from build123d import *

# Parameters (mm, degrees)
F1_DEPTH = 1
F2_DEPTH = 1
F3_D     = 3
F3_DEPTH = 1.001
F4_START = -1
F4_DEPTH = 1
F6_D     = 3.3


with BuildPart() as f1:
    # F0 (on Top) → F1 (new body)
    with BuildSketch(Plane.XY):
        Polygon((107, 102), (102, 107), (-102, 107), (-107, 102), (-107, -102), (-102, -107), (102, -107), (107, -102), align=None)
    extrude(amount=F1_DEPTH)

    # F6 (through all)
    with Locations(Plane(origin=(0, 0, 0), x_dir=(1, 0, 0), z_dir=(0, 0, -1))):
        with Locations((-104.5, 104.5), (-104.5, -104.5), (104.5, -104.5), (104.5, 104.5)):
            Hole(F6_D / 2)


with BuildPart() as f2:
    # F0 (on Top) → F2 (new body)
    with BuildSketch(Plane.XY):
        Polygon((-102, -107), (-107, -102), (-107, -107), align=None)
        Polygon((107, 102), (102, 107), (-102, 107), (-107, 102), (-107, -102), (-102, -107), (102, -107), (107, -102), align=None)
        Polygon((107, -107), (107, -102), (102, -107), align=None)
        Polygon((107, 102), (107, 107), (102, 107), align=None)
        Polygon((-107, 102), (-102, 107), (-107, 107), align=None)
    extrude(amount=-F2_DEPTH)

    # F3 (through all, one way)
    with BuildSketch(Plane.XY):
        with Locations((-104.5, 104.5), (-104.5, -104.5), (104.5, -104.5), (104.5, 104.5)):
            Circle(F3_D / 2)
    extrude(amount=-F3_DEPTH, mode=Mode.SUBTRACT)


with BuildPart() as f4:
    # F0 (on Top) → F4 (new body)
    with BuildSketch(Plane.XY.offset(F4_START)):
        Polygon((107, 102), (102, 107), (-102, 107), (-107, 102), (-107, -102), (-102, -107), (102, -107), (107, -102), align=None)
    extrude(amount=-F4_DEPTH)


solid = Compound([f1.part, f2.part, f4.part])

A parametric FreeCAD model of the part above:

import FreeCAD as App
import Part
import Sketcher
Q = App.Units.Quantity

doc = App.newDocument("Part")
body = doc.addObject("PartDesign::Body", "Body")

sketch1 = body.newObject("Sketcher::SketchObject", "Sketch")
sketch1.AttachmentSupport = (doc.getObject("XY_Plane"), [""])
sketch1.MapMode = "FlatFace"
sketch1.addGeometry([
    Part.LineSegment(App.Vector(107, 102, 0), App.Vector(102, 107, 0)),
    Part.LineSegment(App.Vector(102, 107, 0), App.Vector(-102, 107, 0)),
    Part.LineSegment(App.Vector(-102, 107, 0), App.Vector(-107, 102, 0)),
    Part.LineSegment(App.Vector(-107, 102, 0), App.Vector(-107, -102, 0)),
    Part.LineSegment(App.Vector(-107, -102, 0), App.Vector(-102, -107, 0)),
    Part.LineSegment(App.Vector(-102, -107, 0), App.Vector(102, -107, 0)),
    Part.LineSegment(App.Vector(102, -107, 0), App.Vector(107, -102, 0)),
    Part.LineSegment(App.Vector(107, -102, 0), App.Vector(107, 102, 0)),
], False)
sketch1.addConstraint([
    Sketcher.Constraint("Coincident", 0, 2, 1, 1),
    Sketcher.Constraint("Coincident", 1, 2, 2, 1),
    Sketcher.Constraint("Coincident", 2, 2, 3, 1),
    Sketcher.Constraint("Coincident", 3, 2, 4, 1),
    Sketcher.Constraint("Coincident", 4, 2, 5, 1),
    Sketcher.Constraint("Coincident", 5, 2, 6, 1),
    Sketcher.Constraint("Coincident", 6, 2, 7, 1),
    Sketcher.Constraint("Coincident", 7, 2, 0, 1),
    Sketcher.Constraint("Horizontal", 1),
    Sketcher.Constraint("Vertical", 3),
    Sketcher.Constraint("Horizontal", 5),
    Sketcher.Constraint("Vertical", 7),
    Sketcher.Constraint("Symmetric", 0, 2, 4, 2, -1, 1),
    Sketcher.Constraint("Symmetric", 2, 2, 6, 2, -1, 1),
    Sketcher.Constraint("Perpendicular", 0, 2),
    Sketcher.Constraint("Perpendicular", 2, 4),
    Sketcher.Constraint("Perpendicular", 4, 6),
    Sketcher.Constraint("Horizontal", 3, 2, 6, 2),
    Sketcher.Constraint("Vertical", 1, 2, 4, 2),
    Sketcher.Constraint("Equal", 5, 3),
    Sketcher.Constraint("DistanceX", 1, 2, 1, 1, Q("204 mm")),
    Sketcher.Constraint("DistanceY", -1, 1, 0, 2, Q("107 mm")),
])
pad1 = body.newObject("PartDesign::Pad", "Pad")
pad1.Profile = sketch1
pad1.Length = 1

sketch2 = body.newObject("Sketcher::SketchObject", "Sketch001")
sketch2.AttachmentSupport = (doc.getObject("XY_Plane"), [""])
sketch2.MapMode = "FlatFace"
sketch2.addGeometry([
    Part.Circle(App.Vector(-104.5, -104.5, 0), App.Vector(0, 0, 1), 1.6),
    Part.Circle(App.Vector(-104.5, 104.5, 0), App.Vector(0, 0, 1), 1.6),
    Part.Circle(App.Vector(104.5, 104.5, 0), App.Vector(0, 0, 1), 1.6),
    Part.Circle(App.Vector(104.5, -104.5, 0), App.Vector(0, 0, 1), 1.6),
], False)
sketch2.addConstraint([
    Sketcher.Constraint("Equal", 0, 1),
    Sketcher.Constraint("Equal", 1, 2),
    Sketcher.Constraint("Equal", 2, 3),
    Sketcher.Constraint("Symmetric", 0, 3, 2, 3, -1, 1),
    Sketcher.Constraint("Symmetric", 1, 3, 3, 3, -1, 1),
    Sketcher.Constraint("Symmetric", 1, 3, 2, 3, -2),
    Sketcher.Constraint("Diameter", 0, Q("3.3 mm")),
    Sketcher.Constraint("DistanceY", 0, 3, 1, 3, Q("209 mm")),
    Sketcher.Constraint("DistanceX", 1, 3, 2, 3, Q("209 mm")),
])
doc.recompute()
hole = body.newObject("PartDesign::Hole", "Hole")
hole.Profile = sketch2
hole.ThreadType = "None"
hole.Diameter = 3.3
hole.DepthType = "ThroughAll"
hole.Reversed = True
body2 = doc.addObject("PartDesign::Body", "Body001")

sketch3 = body2.newObject("Sketcher::SketchObject", "Sketch002")
sketch3.AttachmentSupport = (doc.getObject("XY_Plane001"), [""])
sketch3.MapMode = "FlatFace"
sketch3.addGeometry([
    Part.LineSegment(App.Vector(-107, -107, 0), App.Vector(107, -107, 0)),
    Part.LineSegment(App.Vector(107, -107, 0), App.Vector(107, 107, 0)),
    Part.LineSegment(App.Vector(107, 107, 0), App.Vector(-107, 107, 0)),
    Part.LineSegment(App.Vector(-107, 107, 0), App.Vector(-107, -107, 0)),
], False)
sketch3.addConstraint([
    Sketcher.Constraint("Coincident", 0, 2, 1, 1),
    Sketcher.Constraint("Coincident", 1, 2, 2, 1),
    Sketcher.Constraint("Coincident", 2, 2, 3, 1),
    Sketcher.Constraint("Coincident", 3, 2, 0, 1),
    Sketcher.Constraint("Horizontal", 0),
    Sketcher.Constraint("Vertical", 1),
    Sketcher.Constraint("Horizontal", 2),
    Sketcher.Constraint("Vertical", 3),
    Sketcher.Constraint("Symmetric", 0, 2, 2, 2, -1, 1),
    Sketcher.Constraint("Equal", 2, 1),
    Sketcher.Constraint("DistanceX", 0, 1, 0, 2, Q("214 mm")),
])
pad2 = body2.newObject("PartDesign::Pad", "Pad001")
pad2.Profile = sketch3
pad2.Length = 1
pad2.Reversed = True

sketch4 = body2.newObject("Sketcher::SketchObject", "Sketch003")
sketch4.AttachmentSupport = (doc.getObject("XY_Plane001"), [""])
sketch4.MapMode = "FlatFace"
sketch4.addGeometry([
    Part.Circle(App.Vector(104.5, 104.5, 0), App.Vector(0, 0, 1), 1.5),
    Part.Circle(App.Vector(-104.5, 104.5, 0), App.Vector(0, 0, 1), 1.5),
    Part.Circle(App.Vector(-104.5, -104.5, 0), App.Vector(0, 0, 1), 1.5),
    Part.Circle(App.Vector(104.5, -104.5, 0), App.Vector(0, 0, 1), 1.5),
], False)
sketch4.addConstraint([
    Sketcher.Constraint("Equal", 0, 1),
    Sketcher.Constraint("Equal", 1, 2),
    Sketcher.Constraint("Equal", 2, 3),
    Sketcher.Constraint("Symmetric", 0, 3, 2, 3, -1, 1),
    Sketcher.Constraint("Symmetric", 1, 3, 3, 3, -1, 1),
    Sketcher.Constraint("Symmetric", 0, 3, 1, 3, -2),
    Sketcher.Constraint("Diameter", 0, Q("3 mm")),
    Sketcher.Constraint("DistanceX", 1, 3, 0, 3, Q("209 mm")),
    Sketcher.Constraint("DistanceY", 2, 3, 1, 3, Q("209 mm")),
])
pocket1 = body2.newObject("PartDesign::Pocket", "Pocket")
pocket1.Profile = sketch4
pocket1.Type = "ThroughAll"
body3 = doc.addObject("PartDesign::Body", "Body002")

sketch5 = body3.newObject("Sketcher::SketchObject", "Sketch004")
sketch5.AttachmentSupport = (doc.getObject("XY_Plane002"), [""])
sketch5.MapMode = "FlatFace"
sketch5.AttachmentOffset = App.Placement(App.Vector(0, 0, -1), App.Rotation())
sketch5.addGeometry([
    Part.LineSegment(App.Vector(107, 102, 0), App.Vector(102, 107, 0)),
    Part.LineSegment(App.Vector(102, 107, 0), App.Vector(-102, 107, 0)),
    Part.LineSegment(App.Vector(-102, 107, 0), App.Vector(-107, 102, 0)),
    Part.LineSegment(App.Vector(-107, 102, 0), App.Vector(-107, -102, 0)),
    Part.LineSegment(App.Vector(-107, -102, 0), App.Vector(-102, -107, 0)),
    Part.LineSegment(App.Vector(-102, -107, 0), App.Vector(102, -107, 0)),
    Part.LineSegment(App.Vector(102, -107, 0), App.Vector(107, -102, 0)),
    Part.LineSegment(App.Vector(107, -102, 0), App.Vector(107, 102, 0)),
], False)
sketch5.addConstraint([
    Sketcher.Constraint("Coincident", 0, 2, 1, 1),
    Sketcher.Constraint("Coincident", 1, 2, 2, 1),
    Sketcher.Constraint("Coincident", 2, 2, 3, 1),
    Sketcher.Constraint("Coincident", 3, 2, 4, 1),
    Sketcher.Constraint("Coincident", 4, 2, 5, 1),
    Sketcher.Constraint("Coincident", 5, 2, 6, 1),
    Sketcher.Constraint("Coincident", 6, 2, 7, 1),
    Sketcher.Constraint("Coincident", 7, 2, 0, 1),
    Sketcher.Constraint("Horizontal", 1),
    Sketcher.Constraint("Vertical", 3),
    Sketcher.Constraint("Horizontal", 5),
    Sketcher.Constraint("Vertical", 7),
    Sketcher.Constraint("Symmetric", 0, 2, 4, 2, -1, 1),
    Sketcher.Constraint("Symmetric", 2, 2, 6, 2, -1, 1),
    Sketcher.Constraint("Perpendicular", 0, 2),
    Sketcher.Constraint("Perpendicular", 2, 4),
    Sketcher.Constraint("Perpendicular", 4, 6),
    Sketcher.Constraint("Horizontal", 3, 2, 6, 2),
    Sketcher.Constraint("Vertical", 1, 2, 4, 2),
    Sketcher.Constraint("Equal", 5, 3),
    Sketcher.Constraint("DistanceX", 1, 2, 1, 1, Q("204 mm")),
    Sketcher.Constraint("DistanceY", -1, 1, 0, 2, Q("107 mm")),
])
pad3 = body3.newObject("PartDesign::Pad", "Pad002")
pad3.Profile = sketch5
pad3.Length = 1
pad3.Reversed = True

doc.recompute()
